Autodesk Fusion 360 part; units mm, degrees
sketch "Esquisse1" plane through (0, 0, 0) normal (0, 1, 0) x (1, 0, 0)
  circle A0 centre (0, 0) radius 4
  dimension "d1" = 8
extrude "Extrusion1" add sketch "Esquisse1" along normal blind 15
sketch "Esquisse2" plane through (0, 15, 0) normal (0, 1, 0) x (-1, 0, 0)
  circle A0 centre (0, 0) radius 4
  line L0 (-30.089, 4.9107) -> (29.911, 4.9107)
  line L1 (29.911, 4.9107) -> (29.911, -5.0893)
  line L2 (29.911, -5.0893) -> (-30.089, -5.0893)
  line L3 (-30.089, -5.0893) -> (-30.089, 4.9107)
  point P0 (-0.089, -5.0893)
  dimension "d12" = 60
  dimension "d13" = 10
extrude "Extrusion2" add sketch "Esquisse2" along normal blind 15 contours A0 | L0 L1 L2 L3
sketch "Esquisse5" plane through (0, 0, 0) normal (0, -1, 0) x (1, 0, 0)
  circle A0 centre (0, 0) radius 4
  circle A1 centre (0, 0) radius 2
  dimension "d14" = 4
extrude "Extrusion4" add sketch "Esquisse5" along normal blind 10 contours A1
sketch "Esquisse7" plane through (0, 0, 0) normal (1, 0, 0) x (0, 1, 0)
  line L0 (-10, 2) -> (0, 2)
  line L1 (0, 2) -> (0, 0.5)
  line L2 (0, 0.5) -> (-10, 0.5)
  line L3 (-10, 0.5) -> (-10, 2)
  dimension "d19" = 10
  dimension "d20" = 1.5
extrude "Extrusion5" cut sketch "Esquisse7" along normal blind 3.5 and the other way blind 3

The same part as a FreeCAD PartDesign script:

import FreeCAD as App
import Part
import Sketcher
Q = App.Units.Quantity

doc = App.newDocument("Part")
body = doc.addObject("PartDesign::Body", "Body")

# Sketch on XZ plane
sketch1 = doc.addObject("Sketcher::SketchObject", "Sketch")
body.addObject(sketch1)
sketch1.AttachmentSupport = (doc.XZ_Plane, [""])
sketch1.MapMode = "FlatFace"
sketch1.addGeometry(Part.Circle(App.Vector(0, 0, 0), App.Vector(0, 0, 1), 4), False)
sketch1.addConstraint([
    Sketcher.Constraint("Coincident", 0, 3, -1, 1),
    Sketcher.Constraint("Diameter", 0, Q("8 mm")),
])
pad1 = doc.addObject("PartDesign::Pad", "Pad")
body.addObject(pad1)
pad1.Profile = sketch1
pad1.Length = 15
pad1.Reversed = True

# Sketch on XZ plane
sketch2 = doc.addObject("Sketcher::SketchObject", "Sketch001")
body.addObject(sketch2)
sketch2.AttachmentSupport = (doc.XZ_Plane, [""])
sketch2.MapMode = "FlatFace"
sketch2.AttachmentOffset = App.Placement(App.Vector(0, 0, -15), App.Rotation())
sketch2.addGeometry([
    Part.LineSegment(App.Vector(-30, 5, 0), App.Vector(30, 5, 0)),
    Part.LineSegment(App.Vector(30, 5, 0), App.Vector(30, -5, 0)),
    Part.LineSegment(App.Vector(30, -5, 0), App.Vector(-30, -5, 0)),
    Part.LineSegment(App.Vector(-30, -5, 0), App.Vector(-30, 5, 0)),
], False)
sketch2.addConstraint([
    Sketcher.Constraint("Coincident", 0, 2, 1, 1),
    Sketcher.Constraint("Coincident", 1, 2, 2, 1),
    Sketcher.Constraint("Coincident", 2, 2, 3, 1),
    Sketcher.Constraint("Coincident", 3, 2, 0, 1),
    Sketcher.Constraint("Horizontal", 0),
    Sketcher.Constraint("Vertical", 1),
    Sketcher.Constraint("Horizontal", 2),
    Sketcher.Constraint("Vertical", 3),
    Sketcher.Constraint("DistanceX", 0, 1, 0, 2, Q("60 mm")),
    Sketcher.Constraint("DistanceY", 1, 2, 1, 1, Q("10 mm")),
    Sketcher.Constraint("DistanceX", -1, 1, 0, 2, Q("30.089 mm")),
    Sketcher.Constraint("DistanceY", -1, 1, 0, 2, Q("4.9107 mm")),
])
pad2 = doc.addObject("PartDesign::Pad", "Pad001")
body.addObject(pad2)
pad2.Profile = sketch2
pad2.Length = 15
pad2.Reversed = True

# Sketch on XZ plane
sketch3 = doc.addObject("Sketcher::SketchObject", "Sketch002")
body.addObject(sketch3)
sketch3.AttachmentSupport = (doc.XZ_Plane, [""])
sketch3.MapMode = "FlatFace"
sketch3.addGeometry(Part.Circle(App.Vector(0, 0, 0), App.Vector(0, 0, 1), 2), False)
sketch3.addConstraint([
    Sketcher.Constraint("Coincident", 0, 3, -1, 1),
    Sketcher.Constraint("Diameter", 0, Q("4 mm")),
])
pad3 = doc.addObject("PartDesign::Pad", "Pad002")
body.addObject(pad3)
pad3.Profile = sketch3
pad3.Length = 10

# Sketch on YZ plane
sketch4 = doc.addObject("Sketcher::SketchObject", "Sketch003")
body.addObject(sketch4)
sketch4.AttachmentSupport = (doc.YZ_Plane, [""])
sketch4.MapMode = "FlatFace"
sketch4.addGeometry([
    Part.LineSegment(App.Vector(0, 2, 0), App.Vector(-10, 2, 0)),
    Part.LineSegment(App.Vector(-10, 2, 0), App.Vector(-10, 0.5, 0)),
    Part.LineSegment(App.Vector(-10, 0.5, 0), App.Vector(0, 0.5, 0)),
    Part.LineSegment(App.Vector(0, 0.5, 0), App.Vector(0, 2, 0)),
], False)
sketch4.addConstraint([
    Sketcher.Constraint("Coincident", 0, 2, 1, 1),
    Sketcher.Constraint("Coincident", 1, 2, 2, 1),
    Sketcher.Constraint("Coincident", 2, 2, 3, 1),
    Sketcher.Constraint("Coincident", 3, 2, 0, 1),
    Sketcher.Constraint("Horizontal", 0),
    Sketcher.Constraint("Vertical", 1),
    Sketcher.Constraint("Horizontal", 2),
    Sketcher.Constraint("Vertical", 3),
    Sketcher.Constraint("PointOnObject", 2, 2, -2),
    Sketcher.Constraint("DistanceX", 0, 2, 0, 1, Q("10 mm")),
    Sketcher.Constraint("DistanceY", 1, 2, 1, 1, Q("1.5 mm")),
    Sketcher.Constraint("DistanceY", -1, 1, 0, 2, Q("2 mm")),
])
pocket1 = doc.addObject("PartDesign::Pocket", "Pocket")
body.addObject(pocket1)
pocket1.Profile = sketch4
pocket1.Type = "ThroughAll"
pocket1.Midplane = True

doc.recompute()
